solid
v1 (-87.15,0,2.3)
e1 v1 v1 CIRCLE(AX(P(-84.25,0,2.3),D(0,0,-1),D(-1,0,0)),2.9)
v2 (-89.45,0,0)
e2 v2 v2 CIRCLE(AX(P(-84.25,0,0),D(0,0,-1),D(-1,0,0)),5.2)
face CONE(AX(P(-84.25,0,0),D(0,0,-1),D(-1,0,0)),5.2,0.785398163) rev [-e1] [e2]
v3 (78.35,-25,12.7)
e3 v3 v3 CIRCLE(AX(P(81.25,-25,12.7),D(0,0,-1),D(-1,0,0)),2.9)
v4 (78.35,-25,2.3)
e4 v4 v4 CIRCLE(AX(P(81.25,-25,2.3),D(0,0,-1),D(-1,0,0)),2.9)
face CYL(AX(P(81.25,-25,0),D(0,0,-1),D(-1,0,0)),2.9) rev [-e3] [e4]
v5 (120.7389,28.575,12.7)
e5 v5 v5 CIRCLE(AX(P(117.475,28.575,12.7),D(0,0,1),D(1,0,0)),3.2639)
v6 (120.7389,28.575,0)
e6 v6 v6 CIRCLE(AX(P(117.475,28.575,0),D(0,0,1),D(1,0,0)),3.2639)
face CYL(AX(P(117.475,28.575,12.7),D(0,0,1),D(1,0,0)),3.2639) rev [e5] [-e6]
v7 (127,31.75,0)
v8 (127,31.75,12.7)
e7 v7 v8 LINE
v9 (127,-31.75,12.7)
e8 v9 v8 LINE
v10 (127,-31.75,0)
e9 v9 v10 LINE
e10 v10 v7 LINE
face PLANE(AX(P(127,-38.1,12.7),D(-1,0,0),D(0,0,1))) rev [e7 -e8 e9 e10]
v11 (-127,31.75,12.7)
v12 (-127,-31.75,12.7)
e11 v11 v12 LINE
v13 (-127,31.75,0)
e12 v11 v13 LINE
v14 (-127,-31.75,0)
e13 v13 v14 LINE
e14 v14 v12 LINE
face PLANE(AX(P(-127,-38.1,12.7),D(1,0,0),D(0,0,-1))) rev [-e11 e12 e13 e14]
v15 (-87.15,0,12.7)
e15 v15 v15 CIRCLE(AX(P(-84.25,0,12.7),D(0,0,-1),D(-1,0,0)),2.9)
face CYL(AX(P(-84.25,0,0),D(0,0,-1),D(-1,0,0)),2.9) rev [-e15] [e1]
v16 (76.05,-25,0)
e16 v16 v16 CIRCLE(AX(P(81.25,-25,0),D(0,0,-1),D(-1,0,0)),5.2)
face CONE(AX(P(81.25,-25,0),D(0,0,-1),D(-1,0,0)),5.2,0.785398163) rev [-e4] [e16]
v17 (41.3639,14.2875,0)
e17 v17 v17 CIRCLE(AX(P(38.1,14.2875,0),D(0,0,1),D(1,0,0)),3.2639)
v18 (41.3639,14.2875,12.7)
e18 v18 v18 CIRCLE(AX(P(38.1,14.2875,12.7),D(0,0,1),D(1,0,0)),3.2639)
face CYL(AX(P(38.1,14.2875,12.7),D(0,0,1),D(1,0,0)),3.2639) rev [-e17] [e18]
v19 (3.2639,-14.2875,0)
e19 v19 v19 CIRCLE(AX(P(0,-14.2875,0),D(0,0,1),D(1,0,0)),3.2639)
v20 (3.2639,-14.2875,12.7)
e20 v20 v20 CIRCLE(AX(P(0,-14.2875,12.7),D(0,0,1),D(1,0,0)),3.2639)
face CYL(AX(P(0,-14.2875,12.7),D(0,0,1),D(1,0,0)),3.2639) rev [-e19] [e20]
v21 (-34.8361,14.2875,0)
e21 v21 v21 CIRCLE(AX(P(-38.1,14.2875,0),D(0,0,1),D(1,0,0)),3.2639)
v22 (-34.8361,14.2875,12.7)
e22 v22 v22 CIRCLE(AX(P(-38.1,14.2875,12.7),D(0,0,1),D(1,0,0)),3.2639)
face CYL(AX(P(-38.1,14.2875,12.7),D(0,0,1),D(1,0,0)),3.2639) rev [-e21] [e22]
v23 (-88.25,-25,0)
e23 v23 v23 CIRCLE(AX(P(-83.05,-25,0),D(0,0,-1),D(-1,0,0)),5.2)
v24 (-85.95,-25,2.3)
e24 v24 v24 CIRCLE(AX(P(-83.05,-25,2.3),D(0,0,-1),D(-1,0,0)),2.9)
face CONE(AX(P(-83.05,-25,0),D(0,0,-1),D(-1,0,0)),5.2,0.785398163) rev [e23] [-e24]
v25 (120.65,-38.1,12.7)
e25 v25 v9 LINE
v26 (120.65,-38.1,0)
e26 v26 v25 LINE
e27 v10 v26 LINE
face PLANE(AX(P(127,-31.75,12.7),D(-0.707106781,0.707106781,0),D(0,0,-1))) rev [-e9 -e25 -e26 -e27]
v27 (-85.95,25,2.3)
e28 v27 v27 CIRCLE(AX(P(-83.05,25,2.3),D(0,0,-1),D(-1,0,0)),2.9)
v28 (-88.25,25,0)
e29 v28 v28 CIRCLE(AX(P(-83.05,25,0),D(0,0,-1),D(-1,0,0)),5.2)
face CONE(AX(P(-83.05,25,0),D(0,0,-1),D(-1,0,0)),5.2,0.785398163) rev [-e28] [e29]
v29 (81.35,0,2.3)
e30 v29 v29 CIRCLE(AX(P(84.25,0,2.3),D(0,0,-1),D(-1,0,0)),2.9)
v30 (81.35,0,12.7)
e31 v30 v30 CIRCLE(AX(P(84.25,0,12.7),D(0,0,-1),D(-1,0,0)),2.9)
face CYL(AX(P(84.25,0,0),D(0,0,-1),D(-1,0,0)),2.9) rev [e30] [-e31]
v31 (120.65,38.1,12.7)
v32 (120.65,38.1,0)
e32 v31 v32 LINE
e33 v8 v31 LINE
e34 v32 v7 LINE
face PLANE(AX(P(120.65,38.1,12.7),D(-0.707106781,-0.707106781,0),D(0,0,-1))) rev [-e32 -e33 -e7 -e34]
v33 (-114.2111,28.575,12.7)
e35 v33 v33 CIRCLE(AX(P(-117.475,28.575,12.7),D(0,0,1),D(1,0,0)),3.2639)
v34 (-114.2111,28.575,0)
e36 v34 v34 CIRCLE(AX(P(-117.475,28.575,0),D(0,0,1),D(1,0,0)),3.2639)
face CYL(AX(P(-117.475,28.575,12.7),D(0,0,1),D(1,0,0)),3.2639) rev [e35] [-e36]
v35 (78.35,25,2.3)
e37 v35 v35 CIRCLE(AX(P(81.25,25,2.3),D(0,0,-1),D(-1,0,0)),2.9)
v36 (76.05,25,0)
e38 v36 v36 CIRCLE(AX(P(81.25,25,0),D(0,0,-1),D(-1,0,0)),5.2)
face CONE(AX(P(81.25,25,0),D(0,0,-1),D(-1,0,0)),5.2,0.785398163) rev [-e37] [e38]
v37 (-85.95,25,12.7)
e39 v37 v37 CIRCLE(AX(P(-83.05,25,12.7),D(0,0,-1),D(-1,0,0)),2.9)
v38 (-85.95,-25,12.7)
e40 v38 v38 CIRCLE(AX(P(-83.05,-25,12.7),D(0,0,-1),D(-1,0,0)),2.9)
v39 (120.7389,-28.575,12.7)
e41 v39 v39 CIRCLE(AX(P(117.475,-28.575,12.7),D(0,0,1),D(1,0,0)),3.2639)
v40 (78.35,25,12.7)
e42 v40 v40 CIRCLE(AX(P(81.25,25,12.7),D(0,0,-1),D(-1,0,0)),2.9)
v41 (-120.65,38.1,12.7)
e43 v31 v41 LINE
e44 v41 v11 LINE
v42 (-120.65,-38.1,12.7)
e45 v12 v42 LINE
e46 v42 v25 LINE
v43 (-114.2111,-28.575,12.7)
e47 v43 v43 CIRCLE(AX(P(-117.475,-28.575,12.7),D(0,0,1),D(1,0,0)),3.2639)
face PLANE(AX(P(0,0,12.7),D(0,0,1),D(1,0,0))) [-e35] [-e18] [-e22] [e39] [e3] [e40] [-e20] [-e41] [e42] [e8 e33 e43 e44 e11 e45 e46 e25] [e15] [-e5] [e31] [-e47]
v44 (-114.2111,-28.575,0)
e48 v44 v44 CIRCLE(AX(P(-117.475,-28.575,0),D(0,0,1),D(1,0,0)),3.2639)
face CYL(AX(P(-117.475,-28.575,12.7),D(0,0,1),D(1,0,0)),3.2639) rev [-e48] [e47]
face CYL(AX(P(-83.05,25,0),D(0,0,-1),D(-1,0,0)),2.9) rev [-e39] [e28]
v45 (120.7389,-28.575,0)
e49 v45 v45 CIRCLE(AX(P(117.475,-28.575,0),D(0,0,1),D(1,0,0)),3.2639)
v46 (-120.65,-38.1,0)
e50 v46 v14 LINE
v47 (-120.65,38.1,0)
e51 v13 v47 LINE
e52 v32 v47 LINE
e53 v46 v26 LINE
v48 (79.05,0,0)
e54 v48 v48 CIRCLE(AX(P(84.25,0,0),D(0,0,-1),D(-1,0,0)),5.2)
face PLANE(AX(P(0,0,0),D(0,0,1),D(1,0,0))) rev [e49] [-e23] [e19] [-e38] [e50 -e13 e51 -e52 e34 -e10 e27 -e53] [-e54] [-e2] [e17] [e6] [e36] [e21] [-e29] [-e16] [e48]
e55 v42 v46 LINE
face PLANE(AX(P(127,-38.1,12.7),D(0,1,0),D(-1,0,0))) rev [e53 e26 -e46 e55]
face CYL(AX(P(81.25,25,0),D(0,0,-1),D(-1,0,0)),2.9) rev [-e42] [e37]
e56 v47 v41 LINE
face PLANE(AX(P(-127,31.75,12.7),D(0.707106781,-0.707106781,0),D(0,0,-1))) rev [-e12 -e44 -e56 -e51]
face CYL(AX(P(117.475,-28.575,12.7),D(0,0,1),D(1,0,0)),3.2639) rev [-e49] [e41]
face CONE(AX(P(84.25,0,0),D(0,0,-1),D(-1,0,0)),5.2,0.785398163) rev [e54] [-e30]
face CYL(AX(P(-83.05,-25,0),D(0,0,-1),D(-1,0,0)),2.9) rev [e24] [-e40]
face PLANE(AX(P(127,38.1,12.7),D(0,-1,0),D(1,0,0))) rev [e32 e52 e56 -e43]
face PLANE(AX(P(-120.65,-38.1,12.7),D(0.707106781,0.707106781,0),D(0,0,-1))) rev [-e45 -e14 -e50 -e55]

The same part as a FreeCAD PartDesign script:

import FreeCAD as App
import Part
import Sketcher
Q = App.Units.Quantity


def edges_at(feature, points):
    """Names of the edges that pass closest to the given points."""
    edges = feature.Shape.Edges
    near = lambda p: min(range(len(edges)), key=lambda i: edges[i].distToShape(Part.Vertex(*p))[0])
    return sorted({f"Edge{near(p) + 1}" for p in points})


def add_polygon(sketch, points):
    """Adds a closed chain of lines whose ends are joined by coincident constraints."""
    first, n = sketch.GeometryCount, len(points)
    for a, b in zip(points, points[1:] + points[:1]):
        sketch.addGeometry(Part.LineSegment(App.Vector(*a, 0), App.Vector(*b, 0)), False)
    for i in range(n):
        sketch.addConstraint(Sketcher.Constraint("Coincident", first + i, 2, first + (i + 1) % n, 1))

doc = App.newDocument("Part")
body = doc.addObject("PartDesign::Body", "Body")

sketch1 = body.newObject("Sketcher::SketchObject", "Sketch")
sketch1.AttachmentSupport = (doc.getObject("XY_Plane"), [""])
sketch1.MapMode = "FlatFace"
add_polygon(sketch1, [(-127, 38), (-127, -38), (127, -38), (127, 38)])
sketch1.addConstraint([
    Sketcher.Constraint("Vertical", 0),
    Sketcher.Constraint("Horizontal", 1),
    Sketcher.Constraint("Vertical", 2),
    Sketcher.Constraint("Horizontal", 3),
    Sketcher.Constraint("Symmetric", 0, 2, 2, 2, -1, 1),
    Sketcher.Constraint("DistanceX", 1, 1, 1, 2, Q("10 in")),
    Sketcher.Constraint("DistanceY", 0, 2, 0, 1, Q("3 in")),
])
pad1 = body.newObject("PartDesign::Pad", "Pad")
pad1.Profile = sketch1
pad1.Length = Q("0.5 in")

sketch2 = body.newObject("Sketcher::SketchObject", "Sketch001")
sketch2.AttachmentSupport = (doc.getObject("XY_Plane"), [""])
sketch2.MapMode = "FlatFace"
sketch2.AttachmentOffset = App.Placement(App.Vector(0, 0, 0.5 * 25.4), App.Rotation())
sketch2.addGeometry([
    Part.Circle(App.Vector(38.1, 14.3, 0), App.Vector(0, 0, 1), 3.3),
    Part.Circle(App.Vector(-117.5, -28.6, 0), App.Vector(0, 0, 1), 3.3),
    Part.Circle(App.Vector(-117.5, 28.6, 0), App.Vector(0, 0, 1), 3.3),
    Part.Circle(App.Vector(117.5, -28.6, 0), App.Vector(0, 0, 1), 3.3),
    Part.Circle(App.Vector(117.5, 28.6, 0), App.Vector(0, 0, 1), 3.3),
    Part.Circle(App.Vector(-38.1, 14.3, 0), App.Vector(0, 0, 1), 3.3),
    Part.Circle(App.Vector(0, -14.3, 0), App.Vector(0, 0, 1), 3.3),
], False)
sketch2.addConstraint([
    Sketcher.Constraint("Equal", 0, 1),
    Sketcher.Constraint("Equal", 1, 2),
    Sketcher.Constraint("Equal", 2, 3),
    Sketcher.Constraint("Equal", 3, 4),
    Sketcher.Constraint("Equal", 4, 5),
    Sketcher.Constraint("Equal", 5, 6),
    Sketcher.Constraint("Symmetric", 2, 3, 3, 3, -1, 1),
    Sketcher.Constraint("Symmetric", 1, 3, 4, 3, -1, 1),
    Sketcher.Constraint("Symmetric", 1, 3, 3, 3, -2),
    Sketcher.Constraint("Symmetric", 0, 3, 5, 3, -2),
    Sketcher.Constraint("PointOnObject", 6, 3, -2),
    Sketcher.Constraint("Diameter", 0, Q("0.257 in")),
    Sketcher.Constraint("DistanceX", 5, 3, 0, 3, Q("3 in")),
    Sketcher.Constraint("DistanceY", 1, 3, 2, 3, Q("2.25 in")),
    Sketcher.Constraint("DistanceX", 1, 3, 3, 3, Q("9.25 in")),
    Sketcher.Constraint("DistanceY", -1, 1, 0, 3, Q("0.5625 in")),
    Sketcher.Constraint("DistanceY", 6, 3, -1, 1, Q("0.5625 in")),
])
doc.recompute()
hole = body.newObject("PartDesign::Hole", "Hole")
hole.Profile = sketch2
hole.ThreadType = "None"
hole.Diameter = Q("0.257 in")
hole.DepthType = "ThroughAll"
doc.recompute()

chamfer = body.newObject("PartDesign::Chamfer", "Chamfer")
chamfer.Base = (hole, edges_at(hole, [
    (-127, 38.1, 6.35),
    (127, 38.1, 6.35),
    (127, -38.1, 6.35),
    (-127, -38.1, 6.35),
]))
chamfer.Size = Q("0.25 in")

sketch3 = body.newObject("Sketcher::SketchObject", "Sketch002")
sketch3.AttachmentSupport = (doc.getObject("XY_Plane"), [""])
sketch3.MapMode = "FlatFace"
sketch3.addGeometry([
    Part.Circle(App.Vector(81.2, -25, 0), App.Vector(0, 0, 1), 2.9),
    Part.Circle(App.Vector(81.2, 25, 0), App.Vector(0, 0, 1), 2.9),
    Part.Circle(App.Vector(-83, 25, 0), App.Vector(0, 0, 1), 2.9),
    Part.Circle(App.Vector(-83, -25, 0), App.Vector(0, 0, 1), 2.9),
    Part.Circle(App.Vector(84.2, 0, 0), App.Vector(0, 0, 1), 2.9),
    Part.Circle(App.Vector(-84.2, 0, 0), App.Vector(0, 0, 1), 2.9),
], False)
sketch3.addConstraint([
    Sketcher.Constraint("Equal", 0, 1),
    Sketcher.Constraint("Equal", 1, 2),
    Sketcher.Constraint("Equal", 2, 3),
    Sketcher.Constraint("Equal", 3, 4),
    Sketcher.Constraint("Equal", 4, 5),
    Sketcher.Constraint("Symmetric", 4, 3, 5, 3, -1, 1),
    Sketcher.Constraint("Symmetric", 0, 3, 1, 3, -1),
    Sketcher.Constraint("Symmetric", 2, 3, 3, 3, -1),
    Sketcher.Constraint("PointOnObject", 4, 3, -1),
    Sketcher.Constraint("Horizontal", 1, 3, 2, 3),
    Sketcher.Constraint("Diameter", 0, Q("5.8 mm")),
    Sketcher.Constraint("DistanceX", -1, 1, 0, 3, Q("81.25 mm")),
    Sketcher.Constraint("DistanceY", 0, 3, -1, 1, Q("25 mm")),
    Sketcher.Constraint("DistanceX", 2, 3, -1, 1, Q("83.05 mm")),
    Sketcher.Constraint("DistanceX", -1, 1, 4, 3, Q("84.25 mm")),
])
doc.recompute()
hole2 = body.newObject("PartDesign::Hole", "Hole001")
hole2.Profile = sketch3
hole2.ThreadType = "None"
hole2.Diameter = 5.8
hole2.DepthType = "ThroughAll"
hole2.HoleCutType = "Countersink"
hole2.HoleCutDiameter = 10.4
hole2.HoleCutCountersinkAngle = 90
hole2.Reversed = True

doc.recompute()
